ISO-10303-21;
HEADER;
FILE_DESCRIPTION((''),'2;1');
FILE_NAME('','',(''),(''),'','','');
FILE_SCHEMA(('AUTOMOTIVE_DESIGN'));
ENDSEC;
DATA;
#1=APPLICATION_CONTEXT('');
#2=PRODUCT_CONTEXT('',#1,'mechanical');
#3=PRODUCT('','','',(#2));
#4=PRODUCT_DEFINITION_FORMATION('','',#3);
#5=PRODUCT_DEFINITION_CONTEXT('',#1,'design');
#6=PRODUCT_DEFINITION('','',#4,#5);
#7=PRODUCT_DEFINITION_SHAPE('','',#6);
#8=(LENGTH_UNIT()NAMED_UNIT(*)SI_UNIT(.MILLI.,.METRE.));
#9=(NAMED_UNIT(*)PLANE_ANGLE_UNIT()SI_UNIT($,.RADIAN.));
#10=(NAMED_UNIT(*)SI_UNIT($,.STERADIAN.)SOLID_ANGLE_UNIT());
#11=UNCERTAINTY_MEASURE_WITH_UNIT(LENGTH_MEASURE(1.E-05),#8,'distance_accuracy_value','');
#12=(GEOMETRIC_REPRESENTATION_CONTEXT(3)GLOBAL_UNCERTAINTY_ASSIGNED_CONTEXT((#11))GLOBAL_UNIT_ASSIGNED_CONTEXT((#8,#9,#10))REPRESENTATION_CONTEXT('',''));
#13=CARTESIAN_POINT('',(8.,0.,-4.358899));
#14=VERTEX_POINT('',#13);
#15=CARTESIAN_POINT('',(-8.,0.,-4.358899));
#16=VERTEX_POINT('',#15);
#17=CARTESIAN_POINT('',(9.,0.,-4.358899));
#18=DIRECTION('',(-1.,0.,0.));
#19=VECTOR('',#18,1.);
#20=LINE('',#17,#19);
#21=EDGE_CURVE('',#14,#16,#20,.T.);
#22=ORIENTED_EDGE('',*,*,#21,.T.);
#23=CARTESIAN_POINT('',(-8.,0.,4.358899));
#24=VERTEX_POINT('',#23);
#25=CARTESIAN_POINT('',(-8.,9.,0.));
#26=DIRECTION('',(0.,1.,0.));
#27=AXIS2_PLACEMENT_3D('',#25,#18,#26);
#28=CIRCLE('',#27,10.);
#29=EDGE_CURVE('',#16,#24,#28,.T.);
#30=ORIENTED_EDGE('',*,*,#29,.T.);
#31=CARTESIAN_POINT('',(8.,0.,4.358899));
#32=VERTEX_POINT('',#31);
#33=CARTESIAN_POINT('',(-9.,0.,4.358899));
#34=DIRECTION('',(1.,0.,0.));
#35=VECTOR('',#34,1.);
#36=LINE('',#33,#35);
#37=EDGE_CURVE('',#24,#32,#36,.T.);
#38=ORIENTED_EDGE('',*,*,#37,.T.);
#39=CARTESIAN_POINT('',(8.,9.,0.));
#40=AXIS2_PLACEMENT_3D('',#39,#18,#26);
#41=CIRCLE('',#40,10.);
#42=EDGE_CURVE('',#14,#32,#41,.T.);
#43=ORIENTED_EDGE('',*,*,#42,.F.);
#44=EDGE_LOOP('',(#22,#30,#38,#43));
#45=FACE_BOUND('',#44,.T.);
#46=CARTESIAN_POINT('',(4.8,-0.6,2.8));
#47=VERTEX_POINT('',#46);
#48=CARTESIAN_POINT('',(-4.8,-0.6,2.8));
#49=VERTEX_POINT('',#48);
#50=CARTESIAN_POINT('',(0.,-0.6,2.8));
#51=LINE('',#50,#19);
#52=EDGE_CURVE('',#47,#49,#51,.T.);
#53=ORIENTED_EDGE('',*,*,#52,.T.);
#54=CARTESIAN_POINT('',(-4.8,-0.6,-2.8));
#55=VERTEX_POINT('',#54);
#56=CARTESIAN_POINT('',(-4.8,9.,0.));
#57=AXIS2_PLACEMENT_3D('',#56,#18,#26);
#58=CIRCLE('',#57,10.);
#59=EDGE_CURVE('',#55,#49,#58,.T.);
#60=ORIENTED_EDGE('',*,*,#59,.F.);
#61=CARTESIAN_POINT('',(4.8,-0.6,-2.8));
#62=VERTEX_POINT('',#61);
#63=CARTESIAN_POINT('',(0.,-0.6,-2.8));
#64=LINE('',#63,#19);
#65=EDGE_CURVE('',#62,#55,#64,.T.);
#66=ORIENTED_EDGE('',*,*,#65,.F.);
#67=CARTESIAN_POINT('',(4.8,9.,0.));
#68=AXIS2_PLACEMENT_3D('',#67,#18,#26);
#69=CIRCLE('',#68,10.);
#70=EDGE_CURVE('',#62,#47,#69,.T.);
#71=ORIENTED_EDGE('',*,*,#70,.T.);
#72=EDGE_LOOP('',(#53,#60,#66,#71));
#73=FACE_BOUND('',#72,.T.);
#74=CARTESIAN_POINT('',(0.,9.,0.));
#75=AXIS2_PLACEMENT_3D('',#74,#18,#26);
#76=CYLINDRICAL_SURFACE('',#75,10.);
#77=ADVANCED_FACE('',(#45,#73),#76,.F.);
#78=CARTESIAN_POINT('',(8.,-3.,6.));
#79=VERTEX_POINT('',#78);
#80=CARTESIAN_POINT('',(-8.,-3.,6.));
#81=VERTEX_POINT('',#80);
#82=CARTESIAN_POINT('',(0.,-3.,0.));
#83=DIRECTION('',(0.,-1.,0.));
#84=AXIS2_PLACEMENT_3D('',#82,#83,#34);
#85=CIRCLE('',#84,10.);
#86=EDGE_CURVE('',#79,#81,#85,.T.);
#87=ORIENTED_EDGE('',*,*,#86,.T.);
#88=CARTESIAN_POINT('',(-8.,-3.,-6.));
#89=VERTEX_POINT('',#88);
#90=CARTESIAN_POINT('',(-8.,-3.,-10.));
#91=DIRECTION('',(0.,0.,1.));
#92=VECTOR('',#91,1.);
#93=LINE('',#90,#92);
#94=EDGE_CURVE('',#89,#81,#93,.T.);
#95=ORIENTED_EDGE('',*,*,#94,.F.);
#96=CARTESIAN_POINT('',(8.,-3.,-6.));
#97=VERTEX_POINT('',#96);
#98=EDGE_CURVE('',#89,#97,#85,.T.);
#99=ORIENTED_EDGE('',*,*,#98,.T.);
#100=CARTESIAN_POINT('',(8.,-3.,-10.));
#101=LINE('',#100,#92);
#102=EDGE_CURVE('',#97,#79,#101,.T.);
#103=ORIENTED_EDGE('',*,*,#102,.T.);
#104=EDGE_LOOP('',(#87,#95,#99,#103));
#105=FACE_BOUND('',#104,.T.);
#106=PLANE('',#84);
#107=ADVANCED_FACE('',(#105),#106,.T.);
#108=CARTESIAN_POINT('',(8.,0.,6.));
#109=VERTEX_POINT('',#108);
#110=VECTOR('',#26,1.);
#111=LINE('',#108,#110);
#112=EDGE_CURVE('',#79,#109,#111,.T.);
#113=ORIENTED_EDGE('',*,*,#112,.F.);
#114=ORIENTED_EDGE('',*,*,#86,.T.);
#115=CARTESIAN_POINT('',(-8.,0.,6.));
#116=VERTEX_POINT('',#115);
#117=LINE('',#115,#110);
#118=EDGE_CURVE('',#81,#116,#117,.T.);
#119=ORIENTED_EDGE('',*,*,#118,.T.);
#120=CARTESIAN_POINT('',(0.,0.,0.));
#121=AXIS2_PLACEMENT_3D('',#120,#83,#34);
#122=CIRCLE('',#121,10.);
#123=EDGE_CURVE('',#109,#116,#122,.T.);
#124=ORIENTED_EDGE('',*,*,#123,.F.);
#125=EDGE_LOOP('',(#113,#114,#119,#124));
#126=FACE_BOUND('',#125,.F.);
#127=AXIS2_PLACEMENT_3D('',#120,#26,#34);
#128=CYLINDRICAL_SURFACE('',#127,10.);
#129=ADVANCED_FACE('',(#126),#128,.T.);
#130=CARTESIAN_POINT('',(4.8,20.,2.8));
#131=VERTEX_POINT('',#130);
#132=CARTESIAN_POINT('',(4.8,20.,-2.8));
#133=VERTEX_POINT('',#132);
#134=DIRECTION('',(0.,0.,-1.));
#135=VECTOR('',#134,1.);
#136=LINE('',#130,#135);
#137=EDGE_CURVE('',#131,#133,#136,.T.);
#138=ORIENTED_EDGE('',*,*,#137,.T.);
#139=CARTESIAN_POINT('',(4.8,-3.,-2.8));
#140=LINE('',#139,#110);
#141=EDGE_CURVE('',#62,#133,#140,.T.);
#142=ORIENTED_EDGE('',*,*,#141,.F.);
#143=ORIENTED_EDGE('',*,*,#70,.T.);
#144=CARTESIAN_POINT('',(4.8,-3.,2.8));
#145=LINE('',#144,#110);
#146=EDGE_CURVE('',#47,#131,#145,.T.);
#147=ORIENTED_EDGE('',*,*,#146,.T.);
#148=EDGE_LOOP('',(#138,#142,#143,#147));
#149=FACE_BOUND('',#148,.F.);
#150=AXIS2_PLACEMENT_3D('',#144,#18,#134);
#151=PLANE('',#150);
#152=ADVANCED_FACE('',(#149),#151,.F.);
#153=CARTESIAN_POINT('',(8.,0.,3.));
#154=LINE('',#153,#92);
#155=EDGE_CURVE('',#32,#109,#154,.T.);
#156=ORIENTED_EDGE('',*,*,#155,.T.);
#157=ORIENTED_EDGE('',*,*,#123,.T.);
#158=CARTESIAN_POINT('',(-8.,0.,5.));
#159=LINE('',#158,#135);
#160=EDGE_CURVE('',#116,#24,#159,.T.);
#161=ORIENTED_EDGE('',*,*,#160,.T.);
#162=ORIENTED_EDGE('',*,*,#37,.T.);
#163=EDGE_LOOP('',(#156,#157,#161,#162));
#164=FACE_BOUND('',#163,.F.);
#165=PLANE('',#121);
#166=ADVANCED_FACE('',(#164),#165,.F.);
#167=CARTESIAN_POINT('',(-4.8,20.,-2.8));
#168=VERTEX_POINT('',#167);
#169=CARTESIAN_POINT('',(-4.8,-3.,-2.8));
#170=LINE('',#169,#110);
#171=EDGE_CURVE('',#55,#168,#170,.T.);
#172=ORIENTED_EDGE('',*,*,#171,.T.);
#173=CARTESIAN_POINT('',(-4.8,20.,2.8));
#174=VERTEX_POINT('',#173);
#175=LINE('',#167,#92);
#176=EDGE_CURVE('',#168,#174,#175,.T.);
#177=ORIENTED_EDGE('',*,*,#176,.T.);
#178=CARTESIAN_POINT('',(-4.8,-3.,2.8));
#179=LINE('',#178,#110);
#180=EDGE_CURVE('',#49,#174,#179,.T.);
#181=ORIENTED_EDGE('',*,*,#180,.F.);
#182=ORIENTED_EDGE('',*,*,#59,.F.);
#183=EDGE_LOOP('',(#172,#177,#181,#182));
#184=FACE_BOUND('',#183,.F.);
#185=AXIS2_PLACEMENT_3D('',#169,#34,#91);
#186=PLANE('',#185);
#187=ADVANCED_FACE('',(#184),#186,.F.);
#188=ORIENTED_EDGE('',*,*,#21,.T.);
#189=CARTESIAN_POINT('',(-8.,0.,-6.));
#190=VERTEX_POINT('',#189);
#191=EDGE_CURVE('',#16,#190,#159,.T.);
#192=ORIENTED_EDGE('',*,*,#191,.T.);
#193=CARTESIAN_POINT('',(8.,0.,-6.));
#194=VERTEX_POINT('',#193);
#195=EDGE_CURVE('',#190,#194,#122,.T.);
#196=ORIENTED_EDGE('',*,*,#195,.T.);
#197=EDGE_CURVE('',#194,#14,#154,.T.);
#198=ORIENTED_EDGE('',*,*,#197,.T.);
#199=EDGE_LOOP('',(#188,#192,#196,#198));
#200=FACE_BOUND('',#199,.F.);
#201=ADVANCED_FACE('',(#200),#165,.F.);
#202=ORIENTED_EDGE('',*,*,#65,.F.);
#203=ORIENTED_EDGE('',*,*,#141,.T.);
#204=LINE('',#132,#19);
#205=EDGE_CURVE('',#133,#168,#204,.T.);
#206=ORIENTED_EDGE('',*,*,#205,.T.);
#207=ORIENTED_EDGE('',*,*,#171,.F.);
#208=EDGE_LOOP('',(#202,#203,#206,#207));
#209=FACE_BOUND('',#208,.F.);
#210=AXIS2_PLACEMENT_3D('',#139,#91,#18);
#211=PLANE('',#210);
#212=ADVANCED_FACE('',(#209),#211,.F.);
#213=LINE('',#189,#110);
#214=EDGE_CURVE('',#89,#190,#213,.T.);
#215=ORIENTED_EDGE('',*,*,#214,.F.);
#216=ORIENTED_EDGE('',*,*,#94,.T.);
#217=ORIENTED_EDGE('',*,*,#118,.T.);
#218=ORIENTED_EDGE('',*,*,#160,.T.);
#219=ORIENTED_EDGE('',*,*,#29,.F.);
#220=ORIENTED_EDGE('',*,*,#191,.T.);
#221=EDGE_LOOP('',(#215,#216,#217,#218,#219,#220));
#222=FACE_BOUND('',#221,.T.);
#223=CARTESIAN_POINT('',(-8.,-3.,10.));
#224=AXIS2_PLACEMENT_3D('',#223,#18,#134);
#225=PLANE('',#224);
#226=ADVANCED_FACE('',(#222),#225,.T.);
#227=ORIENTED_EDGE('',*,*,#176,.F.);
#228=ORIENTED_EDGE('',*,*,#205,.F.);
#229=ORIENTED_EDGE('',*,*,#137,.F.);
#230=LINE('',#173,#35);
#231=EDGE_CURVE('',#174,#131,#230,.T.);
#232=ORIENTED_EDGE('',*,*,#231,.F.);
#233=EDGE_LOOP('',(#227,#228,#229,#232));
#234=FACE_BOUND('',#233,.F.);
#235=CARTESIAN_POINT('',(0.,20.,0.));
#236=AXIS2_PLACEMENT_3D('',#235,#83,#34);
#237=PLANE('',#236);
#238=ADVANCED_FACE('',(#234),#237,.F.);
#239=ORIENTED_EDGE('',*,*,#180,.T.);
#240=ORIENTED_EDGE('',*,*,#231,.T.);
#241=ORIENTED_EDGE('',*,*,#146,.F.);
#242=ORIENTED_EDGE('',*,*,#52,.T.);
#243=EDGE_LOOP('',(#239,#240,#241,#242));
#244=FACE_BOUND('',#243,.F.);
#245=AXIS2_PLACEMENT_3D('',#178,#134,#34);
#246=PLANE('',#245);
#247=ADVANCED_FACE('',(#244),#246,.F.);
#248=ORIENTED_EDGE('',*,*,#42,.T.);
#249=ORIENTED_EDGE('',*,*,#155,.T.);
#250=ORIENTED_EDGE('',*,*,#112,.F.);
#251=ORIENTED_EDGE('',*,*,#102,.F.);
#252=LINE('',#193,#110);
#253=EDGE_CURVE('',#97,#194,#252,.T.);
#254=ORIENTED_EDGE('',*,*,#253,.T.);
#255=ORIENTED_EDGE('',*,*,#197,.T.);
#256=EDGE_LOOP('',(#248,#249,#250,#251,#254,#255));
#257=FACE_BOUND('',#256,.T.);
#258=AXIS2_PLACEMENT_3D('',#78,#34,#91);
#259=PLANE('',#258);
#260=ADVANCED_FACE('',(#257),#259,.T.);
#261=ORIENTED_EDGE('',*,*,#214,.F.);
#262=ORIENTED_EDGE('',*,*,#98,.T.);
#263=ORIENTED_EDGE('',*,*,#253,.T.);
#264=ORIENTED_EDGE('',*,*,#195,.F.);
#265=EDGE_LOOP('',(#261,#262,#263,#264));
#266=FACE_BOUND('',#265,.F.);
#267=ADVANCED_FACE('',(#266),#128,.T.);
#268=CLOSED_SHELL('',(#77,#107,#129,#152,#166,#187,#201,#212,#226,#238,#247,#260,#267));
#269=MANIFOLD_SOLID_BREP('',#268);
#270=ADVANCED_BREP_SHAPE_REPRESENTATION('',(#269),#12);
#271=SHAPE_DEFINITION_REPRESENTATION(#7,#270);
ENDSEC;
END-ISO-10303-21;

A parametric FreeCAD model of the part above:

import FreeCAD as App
import Part
import Sketcher

doc = App.newDocument("Part")
body = doc.addObject("PartDesign::Body", "Body")

# Sketch on XZ plane
sketch1 = body.newObject("Sketcher::SketchObject", "Sketch")
sketch1.AttachmentSupport = (doc.getObject("XZ_Plane"), [""])
sketch1.MapMode = "FlatFace"
sketch1.addGeometry([
    Part.LineSegment(App.Vector(-4.9, -2.9, 0), App.Vector(-4.9, 2.9, 0)),
    Part.LineSegment(App.Vector(-4.9, 2.9, 0), App.Vector(4.9, 2.9, 0)),
    Part.LineSegment(App.Vector(4.9, 2.9, 0), App.Vector(4.9, -2.9, 0)),
    Part.LineSegment(App.Vector(4.9, -2.9, 0), App.Vector(-4.9, -2.9, 0)),
], False)
sketch1.addConstraint([
    Sketcher.Constraint("Coincident", 0, 2, 1, 1),
    Sketcher.Constraint("Coincident", 1, 2, 2, 1),
    Sketcher.Constraint("Coincident", 2, 2, 3, 1),
    Sketcher.Constraint("Coincident", 3, 2, 0, 1),
    Sketcher.Constraint("Vertical", 0),
    Sketcher.Constraint("Horizontal", 1),
    Sketcher.Constraint("Vertical", 2),
    Sketcher.Constraint("Horizontal", 3),
    Sketcher.Constraint("Symmetric", 0, 2, 2, 2, -1, 1),
    Sketcher.Constraint("DistanceX", 1, 1, 1, 2, 9.8),
    Sketcher.Constraint("DistanceY", 0, 1, 0, 2, 5.8),
])
pad1 = body.newObject("PartDesign::Pad", "Pad")
pad1.Profile = sketch1
pad1.Length = 20
pad1.Reversed = True

# Sketch on XZ plane
sketch2 = body.newObject("Sketcher::SketchObject", "Sketch001")
sketch2.AttachmentSupport = (doc.getObject("XZ_Plane"), [""])
sketch2.MapMode = "FlatFace"
sketch2.addGeometry(Part.Circle(App.Vector(0, 0, 0), App.Vector(0, 0, 1), 10), False)
sketch2.addConstraint([
    Sketcher.Constraint("Coincident", 0, 3, -1, 1),
    Sketcher.Constraint("Diameter", 0, 20.0),
])
pad2 = body.newObject("PartDesign::Pad", "Pad001")
pad2.Profile = sketch2
pad2.Length = 3

# Sketch on XZ plane
sketch3 = body.newObject("Sketcher::SketchObject", "Sketch002")
sketch3.AttachmentSupport = (doc.getObject("XZ_Plane"), [""])
sketch3.MapMode = "FlatFace"
sketch3.AttachmentOffset = App.Placement(App.Vector(0, 0, -20), App.Rotation())
sketch3.addGeometry([
    Part.LineSegment(App.Vector(4.9, -2.9, 0), App.Vector(-4.9, -2.9, 0)),
    Part.LineSegment(App.Vector(-4.9, -2.9, 0), App.Vector(-4.9, 2.9, 0)),
    Part.LineSegment(App.Vector(-4.9, 2.9, 0), App.Vector(4.9, 2.9, 0)),
    Part.LineSegment(App.Vector(4.9, 2.9, 0), App.Vector(4.9, -2.9, 0)),
], False)
sketch3.addConstraint([
    Sketcher.Constraint("Coincident", 0, 2, 1, 1),
    Sketcher.Constraint("Coincident", 1, 2, 2, 1),
    Sketcher.Constraint("Coincident", 2, 2, 3, 1),
    Sketcher.Constraint("Coincident", 3, 2, 0, 1),
    Sketcher.Constraint("Horizontal", 0),
    Sketcher.Constraint("Vertical", 1),
    Sketcher.Constraint("Horizontal", 2),
    Sketcher.Constraint("Vertical", 3),
    Sketcher.Constraint("Symmetric", 0, 2, 2, 2, -1, 1),
    Sketcher.Constraint("DistanceX", 0, 2, 0, 1, 9.8),
    Sketcher.Constraint("DistanceY", 1, 1, 1, 2, 5.8),
])
pocket1 = body.newObject("PartDesign::Pocket", "Pocket")
pocket1.Profile = sketch3
pocket1.Length = 20
pocket1.Reversed = True

# Sketch on YZ plane
sketch4 = body.newObject("Sketcher::SketchObject", "Sketch003")
sketch4.AttachmentSupport = (doc.getObject("YZ_Plane"), [""])
sketch4.MapMode = "FlatFace"
sketch4.addGeometry(Part.Circle(App.Vector(9, 0, 0), App.Vector(0, 0, 1), 10), False)
sketch4.addConstraint([
    Sketcher.Constraint("PointOnObject", 0, 3, -1),
    Sketcher.Constraint("Diameter", 0, 20.0),
    Sketcher.Constraint("DistanceX", -1, 1, 0, 3, 9.0),
])
pocket2 = body.newObject("PartDesign::Pocket", "Pocket001")
pocket2.Profile = sketch4
pocket2.Type = "ThroughAll"
pocket2.Midplane = True

# Sketch on XZ plane
sketch5 = body.newObject("Sketcher::SketchObject", "Sketch004")
sketch5.AttachmentSupport = (doc.getObject("XZ_Plane"), [""])
sketch5.MapMode = "FlatFace"
sketch5.AttachmentOffset = App.Placement(App.Vector(0, 0, 3), App.Rotation())
sketch5.addGeometry([
    Part.LineSegment(App.Vector(4.8, 2.8, 0), App.Vector(-4.8, 2.8, 0)),
    Part.LineSegment(App.Vector(-4.8, 2.8, 0), App.Vector(-4.8, -2.8, 0)),
    Part.LineSegment(App.Vector(-4.8, -2.8, 0), App.Vector(4.8, -2.8, 0)),
    Part.LineSegment(App.Vector(4.8, -2.8, 0), App.Vector(4.8, 2.8, 0)),
], False)
sketch5.addConstraint([
    Sketcher.Constraint("Coincident", 0, 2, 1, 1),
    Sketcher.Constraint("Coincident", 1, 2, 2, 1),
    Sketcher.Constraint("Coincident", 2, 2, 3, 1),
    Sketcher.Constraint("Coincident", 3, 2, 0, 1),
    Sketcher.Constraint("Horizontal", 0),
    Sketcher.Constraint("Vertical", 1),
    Sketcher.Constraint("Horizontal", 2),
    Sketcher.Constraint("Vertical", 3),
    Sketcher.Constraint("Symmetric", 0, 2, 2, 2, -1, 1),
    Sketcher.Constraint("DistanceX", 0, 2, 0, 1, 9.6),
    Sketcher.Constraint("DistanceY", 1, 2, 1, 1, 5.6),
])
pad3 = body.newObject("PartDesign::Pad", "Pad002")
pad3.Profile = sketch5
pad3.Length = 23
pad3.Reversed = True

# Sketch on XZ plane
sketch6 = body.newObject("Sketcher::SketchObject", "Sketch005")
sketch6.AttachmentSupport = (doc.getObject("XZ_Plane"), [""])
sketch6.MapMode = "FlatFace"
sketch6.AttachmentOffset = App.Placement(App.Vector(0, 0, 3), App.Rotation())
sketch6.addGeometry([
    Part.LineSegment(App.Vector(10, 10, 0), App.Vector(8, 10, 0)),  # 0
    Part.LineSegment(App.Vector(8, 10, 0), App.Vector(8, -10, 0)),  # 1
    Part.LineSegment(App.Vector(8, -10, 0), App.Vector(10, -10, 0)),  # 2
    Part.LineSegment(App.Vector(10, -10, 0), App.Vector(10, 10, 0)),  # 3
    Part.LineSegment(App.Vector(-10, 10, 0), App.Vector(-10, -10, 0)),  # 4
    Part.LineSegment(App.Vector(-10, -10, 0), App.Vector(-8, -10, 0)),  # 5
    Part.LineSegment(App.Vector(-8, -10, 0), App.Vector(-8, 10, 0)),  # 6
    Part.LineSegment(App.Vector(-8, 10, 0), App.Vector(-10, 10, 0)),  # 7
], False)
sketch6.addConstraint([
    Sketcher.Constraint("Coincident", 0, 2, 1, 1),
    Sketcher.Constraint("Coincident", 1, 2, 2, 1),
    Sketcher.Constraint("Coincident", 2, 2, 3, 1),
    Sketcher.Constraint("Coincident", 3, 2, 0, 1),
    Sketcher.Constraint("Coincident", 4, 2, 5, 1),
    Sketcher.Constraint("Coincident", 5, 2, 6, 1),
    Sketcher.Constraint("Coincident", 6, 2, 7, 1),
    Sketcher.Constraint("Coincident", 7, 2, 4, 1),
    Sketcher.Constraint("Horizontal", 0),
    Sketcher.Constraint("Vertical", 1),
    Sketcher.Constraint("Horizontal", 2),
    Sketcher.Constraint("Vertical", 3),
    Sketcher.Constraint("Vertical", 4),
    Sketcher.Constraint("Horizontal", 5),
    Sketcher.Constraint("Vertical", 6),
    Sketcher.Constraint("Horizontal", 7),
    Sketcher.Constraint("Symmetric", 3, 2, 4, 2, -1, 1),
    Sketcher.Constraint("Symmetric", 1, 2, 6, 2, -1, 1),
    Sketcher.Constraint("Horizontal", 2, 2, 4, 2),
    Sketcher.Constraint("DistanceX", 0, 2, 0, 1, 2.0),
    Sketcher.Constraint("DistanceY", 1, 2, 1, 1, 20.0),
    Sketcher.Constraint("DistanceX", -1, 1, 0, 2, 8.0),
])
pocket3 = body.newObject("PartDesign::Pocket", "Pocket002")
pocket3.Profile = sketch6
pocket3.Type = "ThroughAll"

doc.recompute()
